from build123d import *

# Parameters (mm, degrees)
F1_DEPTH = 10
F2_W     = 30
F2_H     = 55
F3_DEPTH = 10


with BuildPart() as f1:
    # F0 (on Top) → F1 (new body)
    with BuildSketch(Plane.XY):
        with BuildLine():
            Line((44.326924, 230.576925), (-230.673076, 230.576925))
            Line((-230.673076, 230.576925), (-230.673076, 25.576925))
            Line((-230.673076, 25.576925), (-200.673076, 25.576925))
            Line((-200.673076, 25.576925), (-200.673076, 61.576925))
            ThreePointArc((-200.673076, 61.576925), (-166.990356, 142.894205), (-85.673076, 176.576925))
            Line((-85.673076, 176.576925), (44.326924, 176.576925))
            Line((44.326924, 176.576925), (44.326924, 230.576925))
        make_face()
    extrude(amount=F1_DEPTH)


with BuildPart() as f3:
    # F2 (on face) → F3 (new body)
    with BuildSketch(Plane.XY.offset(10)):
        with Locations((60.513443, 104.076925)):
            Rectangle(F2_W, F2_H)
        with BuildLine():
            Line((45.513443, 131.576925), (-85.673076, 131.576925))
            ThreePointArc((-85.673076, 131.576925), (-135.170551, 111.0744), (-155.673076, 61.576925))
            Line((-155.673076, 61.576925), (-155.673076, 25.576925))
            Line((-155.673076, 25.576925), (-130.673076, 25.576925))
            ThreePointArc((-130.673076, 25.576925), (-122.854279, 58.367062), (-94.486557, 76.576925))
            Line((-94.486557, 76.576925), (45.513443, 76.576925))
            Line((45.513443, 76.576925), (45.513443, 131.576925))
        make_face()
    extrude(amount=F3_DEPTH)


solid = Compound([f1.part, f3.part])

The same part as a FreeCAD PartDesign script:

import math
import FreeCAD as App
import Part
import Sketcher
Q = App.Units.Quantity

doc = App.newDocument("Part")
body = doc.addObject("PartDesign::Body", "Body")

sketch1 = body.newObject("Sketcher::SketchObject", "Sketch")
sketch1.AttachmentSupport = (doc.getObject("XY_Plane"), [""])
sketch1.MapMode = "FlatFace"
sketch1.addGeometry([
    Part.LineSegment(App.Vector(44, 231, 0), App.Vector(-231, 231, 0)),
    Part.LineSegment(App.Vector(-231, 231, 0), App.Vector(-231, 26, 0)),
    Part.LineSegment(App.Vector(-231, 26, 0), App.Vector(-201, 26, 0)),
    Part.LineSegment(App.Vector(-201, 26, 0), App.Vector(-201, 62, 0)),
    Part.ArcOfCircle(Part.Circle(App.Vector(-86, 62, 0), App.Vector(0, 0, 1), 115), math.radians(90), math.radians(180)),
    Part.LineSegment(App.Vector(-86, 177, 0), App.Vector(44, 177, 0)),
    Part.LineSegment(App.Vector(44, 177, 0), App.Vector(44, 231, 0)),
], False)
sketch1.addConstraint([
    Sketcher.Constraint("Coincident", 0, 2, 1, 1),
    Sketcher.Constraint("Coincident", 1, 2, 2, 1),
    Sketcher.Constraint("Coincident", 2, 2, 3, 1),
    Sketcher.Constraint("Tangent", 3, 2, 4, 2),
    Sketcher.Constraint("Tangent", 4, 1, 5, 1),
    Sketcher.Constraint("Coincident", 5, 2, 6, 1),
    Sketcher.Constraint("Coincident", 6, 2, 0, 1),
    Sketcher.Constraint("Horizontal", 0),
    Sketcher.Constraint("Vertical", 1),
    Sketcher.Constraint("Horizontal", 2),
    Sketcher.Constraint("Vertical", 3),
    Sketcher.Constraint("Horizontal", 5),
    Sketcher.Constraint("Vertical", 6),
    Sketcher.Constraint("Radius", 4, Q("114.999999 mm")),
    Sketcher.Constraint("DistanceX", 0, 2, 0, 1, Q("275 mm")),
    Sketcher.Constraint("DistanceX", 2, 1, 2, 2, Q("30 mm")),
    Sketcher.Constraint("DistanceY", 1, 2, 1, 1, Q("205 mm")),
    Sketcher.Constraint("DistanceY", 3, 1, 3, 2, Q("36 mm")),
    Sketcher.Constraint("DistanceX", 4, 3, -1, 1, Q("85.673077 mm")),
    Sketcher.Constraint("DistanceY", -1, 1, 4, 3, Q("61.576926 mm")),
])
pad1 = body.newObject("PartDesign::Pad", "Pad")
pad1.Profile = sketch1
pad1.Length = 10
body2 = doc.addObject("PartDesign::Body", "Body001")

sketch2 = body2.newObject("Sketcher::SketchObject", "Sketch001")
sketch2.AttachmentSupport = (doc.getObject("XY_Plane001"), [""])
sketch2.MapMode = "FlatFace"
sketch2.AttachmentOffset = App.Placement(App.Vector(0, 0, 10), App.Rotation())
sketch2.addGeometry([
    Part.LineSegment(App.Vector(76, 77, 0), App.Vector(76, 132, 0)),
    Part.LineSegment(App.Vector(76, 132, 0), App.Vector(-86, 132, 0)),
    Part.ArcOfCircle(Part.Circle(App.Vector(-86, 62, 0), App.Vector(0, 0, 1), 70), math.radians(90), math.radians(180)),
    Part.LineSegment(App.Vector(-156, 62, 0), App.Vector(-156, 26, 0)),
    Part.LineSegment(App.Vector(-156, 26, 0), App.Vector(-131, 26, 0)),
    Part.ArcOfCircle(Part.Circle(App.Vector(-86, 32, 0), App.Vector(0, 0, 1), 45), math.radians(101), math.radians(189)),
    Part.LineSegment(App.Vector(-94, 77, 0), App.Vector(76, 77, 0)),
], False)
sketch2.addConstraint([
    Sketcher.Constraint("Coincident", 0, 2, 1, 1),
    Sketcher.Constraint("Tangent", 1, 2, 2, 1),
    Sketcher.Constraint("Tangent", 2, 2, 3, 1),
    Sketcher.Constraint("Coincident", 3, 2, 4, 1),
    Sketcher.Constraint("Coincident", 4, 2, 5, 2),
    Sketcher.Constraint("Coincident", 5, 1, 6, 1),
    Sketcher.Constraint("Coincident", 6, 2, 0, 1),
    Sketcher.Constraint("Vertical", 0),
    Sketcher.Constraint("Horizontal", 1),
    Sketcher.Constraint("Vertical", 3),
    Sketcher.Constraint("Horizontal", 4),
    Sketcher.Constraint("Horizontal", 6),
    Sketcher.Constraint("Radius", 2, Q("69.999999 mm")),
    Sketcher.Constraint("DistanceX", 4, 1, 4, 2, Q("25 mm")),
    Sketcher.Constraint("DistanceX", 6, 1, 6, 2, Q("170 mm")),
    Sketcher.Constraint("DistanceY", 0, 1, 0, 2, Q("55 mm")),
    Sketcher.Constraint("DistanceY", 3, 2, 3, 1, Q("36 mm")),
    Sketcher.Constraint("Radius", 5, Q("45.099336 mm")),
    Sketcher.Constraint("DistanceX", 1, 2, 1, 1, Q("161.186519 mm")),
    Sketcher.Constraint("DistanceY", -1, 1, 5, 3, Q("32.269328 mm")),
    Sketcher.Constraint("DistanceX", 2, 3, -1, 1, Q("85.673077 mm")),
])
pad2 = body2.newObject("PartDesign::Pad", "Pad001")
pad2.Profile = sketch2
pad2.Length = 10

doc.recompute()
